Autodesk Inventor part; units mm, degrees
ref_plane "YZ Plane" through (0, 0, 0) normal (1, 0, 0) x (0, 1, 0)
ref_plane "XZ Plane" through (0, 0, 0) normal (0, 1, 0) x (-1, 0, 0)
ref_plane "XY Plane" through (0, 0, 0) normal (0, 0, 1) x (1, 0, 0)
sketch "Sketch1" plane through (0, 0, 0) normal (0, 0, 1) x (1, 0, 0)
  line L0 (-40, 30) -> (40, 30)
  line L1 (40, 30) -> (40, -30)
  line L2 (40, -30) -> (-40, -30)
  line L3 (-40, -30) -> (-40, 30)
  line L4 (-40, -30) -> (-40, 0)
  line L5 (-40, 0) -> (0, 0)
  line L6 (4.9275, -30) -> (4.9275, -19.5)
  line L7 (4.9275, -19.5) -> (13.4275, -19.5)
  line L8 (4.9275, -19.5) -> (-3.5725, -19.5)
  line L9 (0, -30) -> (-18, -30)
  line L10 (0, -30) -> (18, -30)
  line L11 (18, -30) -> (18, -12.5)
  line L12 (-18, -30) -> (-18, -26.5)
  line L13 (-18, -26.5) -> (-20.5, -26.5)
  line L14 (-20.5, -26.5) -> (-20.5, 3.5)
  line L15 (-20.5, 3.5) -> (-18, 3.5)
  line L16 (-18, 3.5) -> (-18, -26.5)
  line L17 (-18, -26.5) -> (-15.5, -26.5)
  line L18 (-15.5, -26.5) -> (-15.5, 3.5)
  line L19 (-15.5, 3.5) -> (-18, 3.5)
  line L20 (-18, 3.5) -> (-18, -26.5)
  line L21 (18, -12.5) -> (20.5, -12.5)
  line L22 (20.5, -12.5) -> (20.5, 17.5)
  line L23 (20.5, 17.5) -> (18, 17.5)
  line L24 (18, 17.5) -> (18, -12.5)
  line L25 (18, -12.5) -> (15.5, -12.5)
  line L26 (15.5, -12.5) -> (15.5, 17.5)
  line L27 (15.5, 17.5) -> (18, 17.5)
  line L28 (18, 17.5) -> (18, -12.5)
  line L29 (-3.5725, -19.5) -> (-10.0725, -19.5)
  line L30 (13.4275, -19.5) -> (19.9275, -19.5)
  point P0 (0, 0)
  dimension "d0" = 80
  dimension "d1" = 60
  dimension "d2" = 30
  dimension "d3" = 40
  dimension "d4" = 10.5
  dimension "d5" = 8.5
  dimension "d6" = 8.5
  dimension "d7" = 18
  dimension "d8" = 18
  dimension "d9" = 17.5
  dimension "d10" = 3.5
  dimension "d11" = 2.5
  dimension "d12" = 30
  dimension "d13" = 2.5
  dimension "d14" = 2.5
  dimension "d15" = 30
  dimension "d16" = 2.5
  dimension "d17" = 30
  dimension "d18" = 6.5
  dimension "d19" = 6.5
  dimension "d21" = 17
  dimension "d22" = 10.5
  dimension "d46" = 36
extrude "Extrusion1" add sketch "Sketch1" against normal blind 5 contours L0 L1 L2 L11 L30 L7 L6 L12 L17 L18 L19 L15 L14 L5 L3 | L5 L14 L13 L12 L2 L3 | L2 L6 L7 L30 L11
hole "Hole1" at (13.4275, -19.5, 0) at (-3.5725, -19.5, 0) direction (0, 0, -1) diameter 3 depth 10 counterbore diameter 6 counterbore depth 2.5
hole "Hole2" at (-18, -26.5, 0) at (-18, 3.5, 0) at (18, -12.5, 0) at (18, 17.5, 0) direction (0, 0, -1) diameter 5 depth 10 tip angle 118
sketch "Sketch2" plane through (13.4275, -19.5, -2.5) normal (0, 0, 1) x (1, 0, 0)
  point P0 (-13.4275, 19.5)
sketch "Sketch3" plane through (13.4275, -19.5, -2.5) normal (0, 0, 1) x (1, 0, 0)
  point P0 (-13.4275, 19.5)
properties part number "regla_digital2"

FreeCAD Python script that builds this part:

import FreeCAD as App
import Part
import Sketcher


def add_polygon(sketch, points):
    """Adds a closed chain of lines whose ends are joined by coincident constraints."""
    first, n = sketch.GeometryCount, len(points)
    for a, b in zip(points, points[1:] + points[:1]):
        sketch.addGeometry(Part.LineSegment(App.Vector(*a, 0), App.Vector(*b, 0)), False)
    for i in range(n):
        sketch.addConstraint(Sketcher.Constraint("Coincident", first + i, 2, first + (i + 1) % n, 1))

doc = App.newDocument("Part")
params = doc.addObject("Spreadsheet::Sheet", "Params")
for row, (alias, value) in enumerate([
    ("sketch1_width", "80 mm"),
    ("sketch1_height", "60 mm"),
    ("sketch1_height2", "30 mm"),
    ("sketch1_width2", "2.5 mm"),
    ("pad1_length", "5 mm"),
    ("sketch2_diameter", "3 mm"),
    ("hole_diameter", "3 mm"),
    ("hole_depth", "10 mm"),
    ("hole_cbore_diameter", "6 mm"),
    ("hole_cbore_depth", "2.5 mm"),
    ("sketch3_diameter", "5 mm"),
    ("hole2_diameter", "5 mm"),
    ("hole2_depth", "10 mm"),
], start=1):
    params.set(f"A{row}", alias)
    params.set(f"B{row}", "=" + value)
    params.setAlias(f"B{row}", alias)

body = doc.addObject("PartDesign::Body", "Body")

# Sketch on XY plane
sketch1 = body.newObject("Sketcher::SketchObject", "Sketch")
sketch1.AttachmentSupport = (doc.getObject("XY_Plane"), [""])
sketch1.MapMode = "FlatFace"
add_polygon(sketch1, [(40, 30), (-40, 30), (-40, -30), (40, -30)])  # lines 0-3
add_polygon(sketch1, [(-15.5, -26.5), (-20.5, -26.5), (-20.5, 3.5), (-15.5, 3.5)])  # lines 4-7
add_polygon(sketch1, [(20.5, -12.5), (18, -12.5), (15.5, -12.5), (15.5, 17.5), (20.5, 17.5)])  # lines 8-12
sketch1.addConstraint([
    Sketcher.Constraint("Horizontal", 0),
    Sketcher.Constraint("Vertical", 1),
    Sketcher.Constraint("Horizontal", 2),
    Sketcher.Constraint("Vertical", 3),
    Sketcher.Constraint("Horizontal", 4),
    Sketcher.Constraint("Vertical", 5),
    Sketcher.Constraint("Horizontal", 6),
    Sketcher.Constraint("Vertical", 7),
    Sketcher.Constraint("Horizontal", 8),
    Sketcher.Constraint("Horizontal", 9),
    Sketcher.Constraint("Vertical", 10),
    Sketcher.Constraint("Horizontal", 11),
    Sketcher.Constraint("Vertical", 12),
    Sketcher.Constraint("Symmetric", 0, 2, 2, 2, -1, 1),
    Sketcher.Constraint("Equal", 8, 9),
    Sketcher.Constraint("Equal", 6, 11),
    Sketcher.Constraint("Equal", 7, 10),
    Sketcher.Constraint("DistanceX", 0, 2, 0, 1, 80.0),
    Sketcher.Constraint("DistanceY", 1, 2, 1, 1, 60.0),
    Sketcher.Constraint("DistanceY", 5, 1, 5, 2, 30.0),
    Sketcher.Constraint("DistanceX", 8, 2, 8, 1, 2.5),
    Sketcher.Constraint("DistanceX", -1, 1, 8, 2, 18.0),
    Sketcher.Constraint("DistanceX", 4, 2, 9, 2, 36.0),
    Sketcher.Constraint("DistanceY", -1, 1, 5, 2, 3.5),
    Sketcher.Constraint("DistanceY", -1, 1, 10, 2, 17.5),
])
sketch1.setExpression("Constraints[30]", "Params.sketch1_width")
sketch1.setExpression("Constraints[31]", "Params.sketch1_height")
sketch1.setExpression("Constraints[32]", "Params.sketch1_height2")
sketch1.setExpression("Constraints[33]", "Params.sketch1_width2")
pad1 = body.newObject("PartDesign::Pad", "Pad")
pad1.Profile = sketch1
pad1.setExpression("Length", "Params.pad1_length")
pad1.Reversed = True

# Sketch on XY plane
sketch2 = body.newObject("Sketcher::SketchObject", "Sketch001")
sketch2.AttachmentSupport = (doc.getObject("XY_Plane"), [""])
sketch2.MapMode = "FlatFace"
sketch2.addGeometry([
    Part.Circle(App.Vector(13.4275, -19.5, 0), App.Vector(0, 0, 1), 1.5),
    Part.Circle(App.Vector(-3.5725, -19.5, 0), App.Vector(0, 0, 1), 1.5),
], False)
sketch2.addConstraint([
    Sketcher.Constraint("Equal", 0, 1),
    Sketcher.Constraint("Horizontal", 0, 3, 1, 3),
    Sketcher.Constraint("Diameter", 0, 3.0),
    Sketcher.Constraint("DistanceX", 1, 3, 0, 3, 17.0),
    Sketcher.Constraint("DistanceY", 0, 3, -1, 1, 19.5),
    Sketcher.Constraint("DistanceX", -1, 1, 0, 3, 13.4275),
])
sketch2.setExpression("Constraints[2]", "Params.sketch2_diameter")
doc.recompute()
hole = body.newObject("PartDesign::Hole", "Hole")
hole.Profile = sketch2
hole.ThreadType = "None"
hole.setExpression("Diameter", "Params.hole_diameter")
hole.DepthType = "Dimension"
hole.setExpression("Depth", "Params.hole_depth")
hole.DrillPoint = "Flat"
hole.HoleCutType = "Counterbore"
hole.setExpression("HoleCutDiameter", "Params.hole_cbore_diameter")
hole.setExpression("HoleCutDepth", "Params.hole_cbore_depth")

# Sketch on XY plane
sketch3 = body.newObject("Sketcher::SketchObject", "Sketch002")
sketch3.AttachmentSupport = (doc.getObject("XY_Plane"), [""])
sketch3.MapMode = "FlatFace"
sketch3.addGeometry([
    Part.Circle(App.Vector(-18, -26.5, 0), App.Vector(0, 0, 1), 2.5),
    Part.Circle(App.Vector(-18, 3.5, 0), App.Vector(0, 0, 1), 2.5),
    Part.Circle(App.Vector(18, -12.5, 0), App.Vector(0, 0, 1), 2.5),
    Part.Circle(App.Vector(18, 17.5, 0), App.Vector(0, 0, 1), 2.5),
], False)
sketch3.addConstraint([
    Sketcher.Constraint("Equal", 0, 1),
    Sketcher.Constraint("Equal", 1, 2),
    Sketcher.Constraint("Equal", 2, 3),
    Sketcher.Constraint("Vertical", 0, 3, 1, 3),
    Sketcher.Constraint("Vertical", 2, 3, 3, 3),
    Sketcher.Constraint("Diameter", 0, 5.0),
    Sketcher.Constraint("DistanceX", 0, 3, -1, 1, 18.0),
    Sketcher.Constraint("DistanceX", -1, 1, 2, 3, 18.0),
    Sketcher.Constraint("DistanceY", 0, 3, 1, 3, 30.0),
    Sketcher.Constraint("DistanceY", 0, 3, 2, 3, 14.0),
    Sketcher.Constraint("DistanceY", 2, 3, 3, 3, 30.0),
    Sketcher.Constraint("DistanceY", 0, 3, -1, 1, 26.5),
])
sketch3.setExpression("Constraints[5]", "Params.sketch3_diameter")
doc.recompute()
hole2 = body.newObject("PartDesign::Hole", "Hole001")
hole2.Profile = sketch3
hole2.ThreadType = "None"
hole2.setExpression("Diameter", "Params.hole2_diameter")
hole2.DepthType = "Dimension"
hole2.setExpression("Depth", "Params.hole2_depth")
hole2.DrillPoint = "Angled"
hole2.DrillPointAngle = 118

doc.recompute()
